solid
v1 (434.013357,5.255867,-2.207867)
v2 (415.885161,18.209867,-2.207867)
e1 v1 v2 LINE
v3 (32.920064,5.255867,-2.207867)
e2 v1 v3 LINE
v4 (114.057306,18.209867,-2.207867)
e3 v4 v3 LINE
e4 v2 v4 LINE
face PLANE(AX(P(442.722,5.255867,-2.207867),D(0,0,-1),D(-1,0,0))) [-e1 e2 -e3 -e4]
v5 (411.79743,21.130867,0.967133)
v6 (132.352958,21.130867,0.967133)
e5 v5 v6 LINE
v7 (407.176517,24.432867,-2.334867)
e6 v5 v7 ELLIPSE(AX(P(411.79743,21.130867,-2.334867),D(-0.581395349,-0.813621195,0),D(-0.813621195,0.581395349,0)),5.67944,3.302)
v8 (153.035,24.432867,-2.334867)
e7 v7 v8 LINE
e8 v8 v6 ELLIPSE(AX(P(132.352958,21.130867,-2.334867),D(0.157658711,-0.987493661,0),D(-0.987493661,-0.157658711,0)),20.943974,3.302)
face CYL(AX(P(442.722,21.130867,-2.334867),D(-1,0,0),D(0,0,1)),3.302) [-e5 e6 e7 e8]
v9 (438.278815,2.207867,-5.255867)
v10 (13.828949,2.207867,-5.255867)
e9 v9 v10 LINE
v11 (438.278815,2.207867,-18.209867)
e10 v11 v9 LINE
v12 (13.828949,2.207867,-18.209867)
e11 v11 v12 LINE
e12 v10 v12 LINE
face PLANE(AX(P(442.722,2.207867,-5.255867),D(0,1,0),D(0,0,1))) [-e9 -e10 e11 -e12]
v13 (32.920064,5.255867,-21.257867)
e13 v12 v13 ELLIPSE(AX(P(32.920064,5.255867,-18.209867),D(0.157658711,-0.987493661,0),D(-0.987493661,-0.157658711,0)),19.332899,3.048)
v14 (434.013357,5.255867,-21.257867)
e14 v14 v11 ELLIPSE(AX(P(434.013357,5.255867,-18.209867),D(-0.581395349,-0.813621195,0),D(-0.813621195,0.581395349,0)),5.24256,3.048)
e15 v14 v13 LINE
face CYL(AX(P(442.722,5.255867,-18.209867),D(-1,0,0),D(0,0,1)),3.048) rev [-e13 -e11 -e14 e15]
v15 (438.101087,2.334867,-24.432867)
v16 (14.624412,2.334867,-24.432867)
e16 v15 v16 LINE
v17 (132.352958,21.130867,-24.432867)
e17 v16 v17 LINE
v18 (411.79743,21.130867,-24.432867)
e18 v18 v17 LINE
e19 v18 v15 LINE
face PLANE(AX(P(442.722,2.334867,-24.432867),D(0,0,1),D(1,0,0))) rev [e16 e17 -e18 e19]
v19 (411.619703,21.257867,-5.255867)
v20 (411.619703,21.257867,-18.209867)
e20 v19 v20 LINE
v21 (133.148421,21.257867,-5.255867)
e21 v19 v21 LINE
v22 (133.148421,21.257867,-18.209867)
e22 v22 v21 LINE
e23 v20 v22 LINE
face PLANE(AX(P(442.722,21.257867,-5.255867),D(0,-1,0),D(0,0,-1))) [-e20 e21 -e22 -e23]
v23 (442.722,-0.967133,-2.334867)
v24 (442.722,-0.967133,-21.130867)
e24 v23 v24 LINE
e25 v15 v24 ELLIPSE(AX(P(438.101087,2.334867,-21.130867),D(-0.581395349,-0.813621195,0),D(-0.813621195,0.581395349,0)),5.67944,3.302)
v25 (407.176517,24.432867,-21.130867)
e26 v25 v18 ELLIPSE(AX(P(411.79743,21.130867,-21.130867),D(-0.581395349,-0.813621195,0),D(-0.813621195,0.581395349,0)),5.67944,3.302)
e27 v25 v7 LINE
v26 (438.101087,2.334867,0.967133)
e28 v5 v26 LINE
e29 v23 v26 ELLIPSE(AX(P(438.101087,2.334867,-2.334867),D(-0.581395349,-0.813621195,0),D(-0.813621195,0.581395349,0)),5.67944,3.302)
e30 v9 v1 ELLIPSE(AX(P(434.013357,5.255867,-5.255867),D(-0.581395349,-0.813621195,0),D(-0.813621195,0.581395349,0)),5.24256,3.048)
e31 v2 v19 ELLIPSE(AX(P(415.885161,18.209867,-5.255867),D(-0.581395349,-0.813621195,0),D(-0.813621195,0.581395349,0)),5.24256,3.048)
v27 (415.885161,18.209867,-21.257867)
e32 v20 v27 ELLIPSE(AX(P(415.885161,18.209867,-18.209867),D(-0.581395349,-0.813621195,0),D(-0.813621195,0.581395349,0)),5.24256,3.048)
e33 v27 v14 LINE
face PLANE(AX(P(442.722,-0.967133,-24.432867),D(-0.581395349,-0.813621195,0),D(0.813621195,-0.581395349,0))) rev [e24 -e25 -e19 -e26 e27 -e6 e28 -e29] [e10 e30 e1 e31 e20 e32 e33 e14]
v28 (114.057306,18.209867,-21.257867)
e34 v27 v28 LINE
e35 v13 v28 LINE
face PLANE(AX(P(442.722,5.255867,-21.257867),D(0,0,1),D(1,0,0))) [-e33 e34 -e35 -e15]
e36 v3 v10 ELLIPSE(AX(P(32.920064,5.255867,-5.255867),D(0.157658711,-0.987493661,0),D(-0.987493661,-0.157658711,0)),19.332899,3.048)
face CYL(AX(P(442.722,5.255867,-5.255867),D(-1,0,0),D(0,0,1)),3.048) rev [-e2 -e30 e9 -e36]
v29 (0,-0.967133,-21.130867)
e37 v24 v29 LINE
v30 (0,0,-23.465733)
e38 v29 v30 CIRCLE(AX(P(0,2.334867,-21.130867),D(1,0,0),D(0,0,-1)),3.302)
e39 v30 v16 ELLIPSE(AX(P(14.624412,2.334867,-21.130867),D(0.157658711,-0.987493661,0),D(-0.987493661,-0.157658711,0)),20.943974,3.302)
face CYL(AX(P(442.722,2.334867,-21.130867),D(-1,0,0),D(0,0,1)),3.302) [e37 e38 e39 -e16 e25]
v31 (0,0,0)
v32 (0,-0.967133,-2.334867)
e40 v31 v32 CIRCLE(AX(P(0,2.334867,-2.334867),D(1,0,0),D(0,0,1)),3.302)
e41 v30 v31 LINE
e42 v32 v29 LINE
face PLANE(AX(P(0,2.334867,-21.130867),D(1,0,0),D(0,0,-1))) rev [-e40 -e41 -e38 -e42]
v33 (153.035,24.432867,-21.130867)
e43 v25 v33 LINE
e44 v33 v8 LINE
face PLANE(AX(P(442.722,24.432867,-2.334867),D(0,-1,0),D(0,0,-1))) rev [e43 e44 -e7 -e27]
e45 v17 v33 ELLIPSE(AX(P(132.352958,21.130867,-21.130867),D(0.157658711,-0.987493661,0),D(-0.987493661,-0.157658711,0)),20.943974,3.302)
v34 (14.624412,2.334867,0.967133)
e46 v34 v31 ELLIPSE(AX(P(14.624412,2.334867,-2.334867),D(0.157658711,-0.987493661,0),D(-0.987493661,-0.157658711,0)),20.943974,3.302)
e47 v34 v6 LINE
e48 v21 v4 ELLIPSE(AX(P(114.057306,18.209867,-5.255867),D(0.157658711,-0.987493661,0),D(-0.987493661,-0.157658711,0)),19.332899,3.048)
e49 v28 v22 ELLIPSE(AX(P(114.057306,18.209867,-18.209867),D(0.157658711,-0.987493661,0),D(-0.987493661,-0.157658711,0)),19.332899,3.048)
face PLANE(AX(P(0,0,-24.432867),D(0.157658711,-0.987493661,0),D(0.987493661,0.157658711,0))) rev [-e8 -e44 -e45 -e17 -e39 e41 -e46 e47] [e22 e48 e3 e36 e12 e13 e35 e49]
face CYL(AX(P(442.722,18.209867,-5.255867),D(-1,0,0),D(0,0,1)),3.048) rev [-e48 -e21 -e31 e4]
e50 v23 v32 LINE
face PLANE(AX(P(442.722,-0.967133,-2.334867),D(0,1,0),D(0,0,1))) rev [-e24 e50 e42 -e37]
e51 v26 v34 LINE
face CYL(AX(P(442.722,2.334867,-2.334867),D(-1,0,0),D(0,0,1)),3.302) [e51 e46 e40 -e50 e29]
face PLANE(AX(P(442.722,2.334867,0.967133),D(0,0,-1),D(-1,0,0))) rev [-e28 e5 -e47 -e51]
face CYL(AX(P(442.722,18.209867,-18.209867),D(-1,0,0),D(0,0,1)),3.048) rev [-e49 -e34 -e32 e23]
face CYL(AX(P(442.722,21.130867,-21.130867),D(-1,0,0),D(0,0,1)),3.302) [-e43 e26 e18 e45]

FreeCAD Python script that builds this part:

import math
import FreeCAD as App
import Part
import Sketcher
from FreeCAD import Vector
Q = App.Units.Quantity


def add_polygon(sketch, points):
    """Adds a closed chain of lines whose ends are joined by coincident constraints."""
    first, n = sketch.GeometryCount, len(points)
    for a, b in zip(points, points[1:] + points[:1]):
        sketch.addGeometry(Part.LineSegment(App.Vector(*a, 0), App.Vector(*b, 0)), False)
    for i in range(n):
        sketch.addConstraint(Sketcher.Constraint("Coincident", first + i, 2, first + (i + 1) % n, 1))

doc = App.newDocument("Part")
params = doc.addObject("Spreadsheet::Sheet", "Params")
for row, (alias, value) in enumerate([
    ("sketch1_radius", "0.13 in"),
    ("sketch1_radius2", "0.12 in"),
    ("sketch1_width", "0.74 in"),
    ("sketch1_width2", "0.51 in"),
    ("pad1_length", "17.43 in"),
    ("sketch2_height", "1 in"),
    ("sketch2_length", "1.72 in"),
    ("sketch2_width", "6.025 in"),
], start=1):
    params.set(f"A{row}", alias)
    params.set(f"B{row}", "=" + value)
    params.setAlias(f"B{row}", alias)

body = doc.addObject("PartDesign::Body", "Body")

# Sketch on YZ plane
sketch1 = body.newObject("Sketcher::SketchObject", "Sketch")
sketch1.AttachmentSupport = (doc.getObject("YZ_Plane"), [""])
sketch1.MapMode = "FlatFace"
sketch1.addGeometry([
    Part.LineSegment(Vector(-1, -2.3, 0), Vector(-1, -21.1, 0)),  # 0
    Part.ArcOfCircle(Part.Circle(Vector(2.3, -21.1, 0), Vector(0, 0, 1), 3.3), math.radians(180), math.radians(270)),  # 1
    Part.LineSegment(Vector(2.3, -24.4, 0), Vector(21.1, -24.4, 0)),  # 2
    Part.ArcOfCircle(Part.Circle(Vector(21.1, -21.1, 0), Vector(0, 0, 1), 3.3), math.radians(-90), math.radians(0)),  # 3
    Part.LineSegment(Vector(24.4, -21.1, 0), Vector(24.4, -2.3, 0)),  # 4
    Part.ArcOfCircle(Part.Circle(Vector(21.1, -2.3, 0), Vector(0, 0, 1), 3.3), math.radians(0), math.radians(90)),  # 5
    Part.LineSegment(Vector(21.1, 1, 0), Vector(2.3, 1, 0)),  # 6
    Part.ArcOfCircle(Part.Circle(Vector(2.3, -2.3, 0), Vector(0, 0, 1), 3.3), math.radians(90), math.radians(180)),  # 7
    Part.LineSegment(Vector(2.2, -18.2, 0), Vector(2.2, -5.3, 0)),  # 8
    Part.ArcOfCircle(Part.Circle(Vector(5.3, -5.3, 0), Vector(0, 0, 1), 3), math.radians(90), math.radians(180)),  # 9
    Part.LineSegment(Vector(5.3, -2.2, 0), Vector(18.2, -2.2, 0)),  # 10
    Part.ArcOfCircle(Part.Circle(Vector(18.2, -5.3, 0), Vector(0, 0, 1), 3), math.radians(0), math.radians(90)),  # 11
    Part.LineSegment(Vector(21.3, -5.3, 0), Vector(21.3, -18.2, 0)),  # 12
    Part.ArcOfCircle(Part.Circle(Vector(18.2, -18.2, 0), Vector(0, 0, 1), 3), math.radians(-90), math.radians(0)),  # 13
    Part.LineSegment(Vector(18.2, -21.3, 0), Vector(5.3, -21.3, 0)),  # 14
    Part.ArcOfCircle(Part.Circle(Vector(5.3, -18.2, 0), Vector(0, 0, 1), 3), math.radians(180), math.radians(270)),  # 15
], False)
sketch1.addConstraint([
    Sketcher.Constraint("Tangent", 0, 2, 1, 1),
    Sketcher.Constraint("Tangent", 1, 2, 2, 1),
    Sketcher.Constraint("Tangent", 2, 2, 3, 1),
    Sketcher.Constraint("Tangent", 3, 2, 4, 1),
    Sketcher.Constraint("Tangent", 4, 2, 5, 1),
    Sketcher.Constraint("Tangent", 5, 2, 6, 1),
    Sketcher.Constraint("Tangent", 6, 2, 7, 1),
    Sketcher.Constraint("Tangent", 7, 2, 0, 1),
    Sketcher.Constraint("Tangent", 8, 2, 9, 2),
    Sketcher.Constraint("Tangent", 9, 1, 10, 1),
    Sketcher.Constraint("Tangent", 10, 2, 11, 2),
    Sketcher.Constraint("Tangent", 11, 1, 12, 1),
    Sketcher.Constraint("Tangent", 12, 2, 13, 2),
    Sketcher.Constraint("Tangent", 13, 1, 14, 1),
    Sketcher.Constraint("Tangent", 14, 2, 15, 2),
    Sketcher.Constraint("Tangent", 15, 1, 8, 1),
    Sketcher.Constraint("Vertical", 0),
    Sketcher.Constraint("Horizontal", 2),
    Sketcher.Constraint("Vertical", 4),
    Sketcher.Constraint("Horizontal", 6),
    Sketcher.Constraint("Vertical", 8),
    Sketcher.Constraint("Horizontal", 10),
    Sketcher.Constraint("Vertical", 12),
    Sketcher.Constraint("Horizontal", 14),
    Sketcher.Constraint("Equal", 1, 3),
    Sketcher.Constraint("Equal", 3, 5),
    Sketcher.Constraint("Equal", 5, 7),
    Sketcher.Constraint("Equal", 9, 11),
    Sketcher.Constraint("Equal", 11, 13),
    Sketcher.Constraint("Equal", 13, 15),
    Sketcher.Constraint("Equal", 6, 0),
    Sketcher.Constraint("Equal", 14, 8),
    Sketcher.Constraint("Radius", 1, Q("0.13 in")),
    Sketcher.Constraint("Radius", 9, Q("0.12 in")),
    Sketcher.Constraint("DistanceX", 2, 1, 2, 2, Q("0.74 in")),
    Sketcher.Constraint("DistanceX", 10, 1, 10, 2, Q("0.51 in")),
    Sketcher.Constraint("DistanceX", 7, 3, 9, 3, Q("0.115 in")),
    Sketcher.Constraint("DistanceY", 9, 3, 7, 3, Q("0.115 in")),
    Sketcher.Constraint("DistanceX", -1, 1, 1, 3, Q("2.334867 mm")),
    Sketcher.Constraint("DistanceY", 1, 3, -1, 1, Q("21.130867 mm")),
])
sketch1.setExpression("Constraints[32]", "Params.sketch1_radius")
sketch1.setExpression("Constraints[33]", "Params.sketch1_radius2")
sketch1.setExpression("Constraints[34]", "Params.sketch1_width")
sketch1.setExpression("Constraints[35]", "Params.sketch1_width2")
pad1 = body.newObject("PartDesign::Pad", "Pad")
pad1.Profile = sketch1
pad1.setExpression("Length", "Params.pad1_length")

# Sketch on XY plane
sketch2 = body.newObject("Sketcher::SketchObject", "Sketch001")
sketch2.AttachmentSupport = (doc.getObject("XY_Plane"), [""])
sketch2.MapMode = "FlatFace"
sketch2.AttachmentOffset = App.Placement(Vector(0, 0, 0.967133), App.Rotation())
add_polygon(sketch2, [(0, 0), (153, 24), (0, 24)])  # lines 0-2
add_polygon(sketch2, [(443, -1), (443, 24), (407, 24)])  # lines 3-5
sketch2.addConstraint([
    Sketcher.Constraint("Horizontal", 1),
    Sketcher.Constraint("Vertical", 2),
    Sketcher.Constraint("Vertical", 3),
    Sketcher.Constraint("Horizontal", 4),
    Sketcher.Constraint("Coincident", 2, 2, -1, 1),
    Sketcher.Constraint("Horizontal", 1, 2, 3, 2),
    Sketcher.Constraint("DistanceY", 3, 1, 3, 2, Q("1 in")),
    Sketcher.Constraint("Distance", 5, Q("1.72 in")),
    Sketcher.Constraint("DistanceX", 1, 2, 1, 1, Q("6.025 in")),
    Sketcher.Constraint("DistanceX", -1, 1, 3, 2, Q("17.43 in")),
    Sketcher.Constraint("DistanceY", 2, 2, 2, 1, Q("24.432867 mm")),
])
sketch2.setExpression("Constraints[12]", "Params.sketch2_height")
sketch2.setExpression("Constraints[13]", "Params.sketch2_length")
sketch2.setExpression("Constraints[14]", "Params.sketch2_width")
pocket1 = body.newObject("PartDesign::Pocket", "Pocket")
pocket1.Profile = sketch2
pocket1.Type = "ThroughAll"

doc.recompute()
